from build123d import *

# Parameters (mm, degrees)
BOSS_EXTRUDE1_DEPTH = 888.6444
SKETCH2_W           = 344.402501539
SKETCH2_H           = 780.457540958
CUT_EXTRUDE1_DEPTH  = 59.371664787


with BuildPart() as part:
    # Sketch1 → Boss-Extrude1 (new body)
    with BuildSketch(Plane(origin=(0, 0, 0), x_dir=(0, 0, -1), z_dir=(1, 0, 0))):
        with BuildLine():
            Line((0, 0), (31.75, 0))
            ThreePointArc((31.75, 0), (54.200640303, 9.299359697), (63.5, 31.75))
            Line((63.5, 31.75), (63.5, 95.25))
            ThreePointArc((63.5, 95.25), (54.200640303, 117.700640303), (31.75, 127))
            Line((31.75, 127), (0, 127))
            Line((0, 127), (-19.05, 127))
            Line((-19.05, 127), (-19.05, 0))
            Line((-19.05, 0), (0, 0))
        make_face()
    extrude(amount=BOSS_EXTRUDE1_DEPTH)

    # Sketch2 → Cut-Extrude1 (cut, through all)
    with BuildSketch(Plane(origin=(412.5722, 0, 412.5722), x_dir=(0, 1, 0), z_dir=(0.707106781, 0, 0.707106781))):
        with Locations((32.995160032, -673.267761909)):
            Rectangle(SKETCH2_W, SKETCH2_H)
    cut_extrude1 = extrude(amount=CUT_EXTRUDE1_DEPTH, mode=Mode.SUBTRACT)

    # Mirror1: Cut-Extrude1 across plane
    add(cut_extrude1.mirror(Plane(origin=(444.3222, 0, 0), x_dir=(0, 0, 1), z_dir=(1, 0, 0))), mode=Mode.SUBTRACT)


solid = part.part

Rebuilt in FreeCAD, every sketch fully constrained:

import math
import FreeCAD as App
import Part
import Sketcher

V = App.Vector
Q = App.Units.Quantity


def add_polygon(sketch, points):
    """Adds a closed chain of lines whose ends are joined by coincident constraints."""
    first, n = sketch.GeometryCount, len(points)
    for a, b in zip(points, points[1:] + points[:1]):
        sketch.addGeometry(Part.LineSegment(App.Vector(*a, 0), App.Vector(*b, 0)), False)
    for i in range(n):
        sketch.addConstraint(Sketcher.Constraint("Coincident", first + i, 2, first + (i + 1) % n, 1))

doc = App.newDocument("Part")
body = doc.addObject("PartDesign::Body", "Body")

sketch1 = body.newObject("Sketcher::SketchObject", "Sketch")
sketch1.AttachmentSupport = (doc.getObject("YZ_Plane"), [""])
sketch1.MapMode = "FlatFace"
sketch1.addGeometry(Part.ArcOfCircle(Part.Circle(V(31.75, -31.75, 0), V(0, 0, 1), 31.75), math.radians(180), math.radians(270)), False)
sketch1.addGeometry(Part.LineSegment(V(31.75, -63.5, 0), V(95.25, -63.5, 0)), False)
sketch1.addGeometry(Part.ArcOfCircle(Part.Circle(V(95.25, -31.75, 0), V(0, 0, 1), 31.75), math.radians(-90), math.radians(0)), False)
sketch1.addGeometry(Part.LineSegment(V(127, -31.75, 0), V(127, 19.05, 0)), False)
sketch1.addGeometry(Part.LineSegment(V(127, 19.05, 0), V(0, 19.05, 0)), False)
sketch1.addGeometry(Part.LineSegment(V(0, 19.05, 0), V(0, -31.75, 0)), False)
sketch1.addConstraint(Sketcher.Constraint("Tangent", 0, 2, 1, 1))
sketch1.addConstraint(Sketcher.Constraint("Tangent", 1, 2, 2, 1))
sketch1.addConstraint(Sketcher.Constraint("Tangent", 2, 2, 3, 1))
sketch1.addConstraint(Sketcher.Constraint("Coincident", 3, 2, 4, 1))
sketch1.addConstraint(Sketcher.Constraint("Coincident", 4, 2, 5, 1))
sketch1.addConstraint(Sketcher.Constraint("Tangent", 5, 2, 0, 1))
sketch1.addConstraint(Sketcher.Constraint("Horizontal", 1))
sketch1.addConstraint(Sketcher.Constraint("Vertical", 3))
sketch1.addConstraint(Sketcher.Constraint("Horizontal", 4))
sketch1.addConstraint(Sketcher.Constraint("Vertical", 5))
sketch1.addConstraint(Sketcher.Constraint("Equal", 0, 2))
sketch1.addConstraint(Sketcher.Constraint("PointOnObject", 4, 2, -2))
sketch1.addConstraint(Sketcher.Constraint("DistanceX", 4, 2, 4, 1, Q("5 in")))
sketch1.addConstraint(Sketcher.Constraint("DistanceY", 3, 1, 3, 2, Q("2 in")))
sketch1.addConstraint(Sketcher.Constraint("Radius", 0, Q("1.25 in")))
sketch1.addConstraint(Sketcher.Constraint("DistanceY", 0, 2, -1, 1, Q("2.5 in")))
pad1 = body.newObject("PartDesign::Pad", "Pad")
pad1.Profile = sketch1
pad1.Length = Q("34.986 in")

sketch2 = body.newObject("Sketcher::SketchObject", "Sketch001")
sketch2.Placement = App.Placement(V(412.5722, 0, 412.5722), App.Rotation(V(0, 1, 0), V(-0.707106781, 0, 0.707106781), V(0.707106781, 0, 0.707106781), "ZXY"))
add_polygon(sketch2, [(-139.206091, -283.038991), (-139.206091, -1063.496532), (205.196411, -1063.496532), (205.196411, -283.038991)])
sketch2.addConstraint(Sketcher.Constraint("Vertical", 0))
sketch2.addConstraint(Sketcher.Constraint("Horizontal", 1))
sketch2.addConstraint(Sketcher.Constraint("Vertical", 2))
sketch2.addConstraint(Sketcher.Constraint("Horizontal", 3))
sketch2.addConstraint(Sketcher.Constraint("DistanceX", 1, 1, 1, 2, Q("344.402502 mm")))
sketch2.addConstraint(Sketcher.Constraint("DistanceY", 0, 2, 0, 1, Q("780.457541 mm")))
sketch2.addConstraint(Sketcher.Constraint("DistanceX", 0, 2, -1, 1, Q("139.206091 mm")))
sketch2.addConstraint(Sketcher.Constraint("DistanceY", 0, 2, -1, 1, Q("1063.496532 mm")))
pocket1 = body.newObject("PartDesign::Pocket", "Pocket")
pocket1.Profile = sketch2
pocket1.Type = "ThroughAll"
pocket1.Reversed = True
doc.recompute()

datumplane = body.newObject("PartDesign::Plane", "DatumPlane")
datumplane.AttachmentSupport = (doc.getObject("YZ_Plane"), [""])
datumplane.MapMode = "FlatFace"
datumplane.AttachmentOffset = App.Placement(V(0, 0, 17.493 * 25.4), App.Rotation())
mirrored = body.newObject("PartDesign::Mirrored", "Mirrored")
mirrored.Originals = [pocket1]
mirrored.MirrorPlane = (datumplane, [""])
body.Tip = mirrored

doc.recompute()
